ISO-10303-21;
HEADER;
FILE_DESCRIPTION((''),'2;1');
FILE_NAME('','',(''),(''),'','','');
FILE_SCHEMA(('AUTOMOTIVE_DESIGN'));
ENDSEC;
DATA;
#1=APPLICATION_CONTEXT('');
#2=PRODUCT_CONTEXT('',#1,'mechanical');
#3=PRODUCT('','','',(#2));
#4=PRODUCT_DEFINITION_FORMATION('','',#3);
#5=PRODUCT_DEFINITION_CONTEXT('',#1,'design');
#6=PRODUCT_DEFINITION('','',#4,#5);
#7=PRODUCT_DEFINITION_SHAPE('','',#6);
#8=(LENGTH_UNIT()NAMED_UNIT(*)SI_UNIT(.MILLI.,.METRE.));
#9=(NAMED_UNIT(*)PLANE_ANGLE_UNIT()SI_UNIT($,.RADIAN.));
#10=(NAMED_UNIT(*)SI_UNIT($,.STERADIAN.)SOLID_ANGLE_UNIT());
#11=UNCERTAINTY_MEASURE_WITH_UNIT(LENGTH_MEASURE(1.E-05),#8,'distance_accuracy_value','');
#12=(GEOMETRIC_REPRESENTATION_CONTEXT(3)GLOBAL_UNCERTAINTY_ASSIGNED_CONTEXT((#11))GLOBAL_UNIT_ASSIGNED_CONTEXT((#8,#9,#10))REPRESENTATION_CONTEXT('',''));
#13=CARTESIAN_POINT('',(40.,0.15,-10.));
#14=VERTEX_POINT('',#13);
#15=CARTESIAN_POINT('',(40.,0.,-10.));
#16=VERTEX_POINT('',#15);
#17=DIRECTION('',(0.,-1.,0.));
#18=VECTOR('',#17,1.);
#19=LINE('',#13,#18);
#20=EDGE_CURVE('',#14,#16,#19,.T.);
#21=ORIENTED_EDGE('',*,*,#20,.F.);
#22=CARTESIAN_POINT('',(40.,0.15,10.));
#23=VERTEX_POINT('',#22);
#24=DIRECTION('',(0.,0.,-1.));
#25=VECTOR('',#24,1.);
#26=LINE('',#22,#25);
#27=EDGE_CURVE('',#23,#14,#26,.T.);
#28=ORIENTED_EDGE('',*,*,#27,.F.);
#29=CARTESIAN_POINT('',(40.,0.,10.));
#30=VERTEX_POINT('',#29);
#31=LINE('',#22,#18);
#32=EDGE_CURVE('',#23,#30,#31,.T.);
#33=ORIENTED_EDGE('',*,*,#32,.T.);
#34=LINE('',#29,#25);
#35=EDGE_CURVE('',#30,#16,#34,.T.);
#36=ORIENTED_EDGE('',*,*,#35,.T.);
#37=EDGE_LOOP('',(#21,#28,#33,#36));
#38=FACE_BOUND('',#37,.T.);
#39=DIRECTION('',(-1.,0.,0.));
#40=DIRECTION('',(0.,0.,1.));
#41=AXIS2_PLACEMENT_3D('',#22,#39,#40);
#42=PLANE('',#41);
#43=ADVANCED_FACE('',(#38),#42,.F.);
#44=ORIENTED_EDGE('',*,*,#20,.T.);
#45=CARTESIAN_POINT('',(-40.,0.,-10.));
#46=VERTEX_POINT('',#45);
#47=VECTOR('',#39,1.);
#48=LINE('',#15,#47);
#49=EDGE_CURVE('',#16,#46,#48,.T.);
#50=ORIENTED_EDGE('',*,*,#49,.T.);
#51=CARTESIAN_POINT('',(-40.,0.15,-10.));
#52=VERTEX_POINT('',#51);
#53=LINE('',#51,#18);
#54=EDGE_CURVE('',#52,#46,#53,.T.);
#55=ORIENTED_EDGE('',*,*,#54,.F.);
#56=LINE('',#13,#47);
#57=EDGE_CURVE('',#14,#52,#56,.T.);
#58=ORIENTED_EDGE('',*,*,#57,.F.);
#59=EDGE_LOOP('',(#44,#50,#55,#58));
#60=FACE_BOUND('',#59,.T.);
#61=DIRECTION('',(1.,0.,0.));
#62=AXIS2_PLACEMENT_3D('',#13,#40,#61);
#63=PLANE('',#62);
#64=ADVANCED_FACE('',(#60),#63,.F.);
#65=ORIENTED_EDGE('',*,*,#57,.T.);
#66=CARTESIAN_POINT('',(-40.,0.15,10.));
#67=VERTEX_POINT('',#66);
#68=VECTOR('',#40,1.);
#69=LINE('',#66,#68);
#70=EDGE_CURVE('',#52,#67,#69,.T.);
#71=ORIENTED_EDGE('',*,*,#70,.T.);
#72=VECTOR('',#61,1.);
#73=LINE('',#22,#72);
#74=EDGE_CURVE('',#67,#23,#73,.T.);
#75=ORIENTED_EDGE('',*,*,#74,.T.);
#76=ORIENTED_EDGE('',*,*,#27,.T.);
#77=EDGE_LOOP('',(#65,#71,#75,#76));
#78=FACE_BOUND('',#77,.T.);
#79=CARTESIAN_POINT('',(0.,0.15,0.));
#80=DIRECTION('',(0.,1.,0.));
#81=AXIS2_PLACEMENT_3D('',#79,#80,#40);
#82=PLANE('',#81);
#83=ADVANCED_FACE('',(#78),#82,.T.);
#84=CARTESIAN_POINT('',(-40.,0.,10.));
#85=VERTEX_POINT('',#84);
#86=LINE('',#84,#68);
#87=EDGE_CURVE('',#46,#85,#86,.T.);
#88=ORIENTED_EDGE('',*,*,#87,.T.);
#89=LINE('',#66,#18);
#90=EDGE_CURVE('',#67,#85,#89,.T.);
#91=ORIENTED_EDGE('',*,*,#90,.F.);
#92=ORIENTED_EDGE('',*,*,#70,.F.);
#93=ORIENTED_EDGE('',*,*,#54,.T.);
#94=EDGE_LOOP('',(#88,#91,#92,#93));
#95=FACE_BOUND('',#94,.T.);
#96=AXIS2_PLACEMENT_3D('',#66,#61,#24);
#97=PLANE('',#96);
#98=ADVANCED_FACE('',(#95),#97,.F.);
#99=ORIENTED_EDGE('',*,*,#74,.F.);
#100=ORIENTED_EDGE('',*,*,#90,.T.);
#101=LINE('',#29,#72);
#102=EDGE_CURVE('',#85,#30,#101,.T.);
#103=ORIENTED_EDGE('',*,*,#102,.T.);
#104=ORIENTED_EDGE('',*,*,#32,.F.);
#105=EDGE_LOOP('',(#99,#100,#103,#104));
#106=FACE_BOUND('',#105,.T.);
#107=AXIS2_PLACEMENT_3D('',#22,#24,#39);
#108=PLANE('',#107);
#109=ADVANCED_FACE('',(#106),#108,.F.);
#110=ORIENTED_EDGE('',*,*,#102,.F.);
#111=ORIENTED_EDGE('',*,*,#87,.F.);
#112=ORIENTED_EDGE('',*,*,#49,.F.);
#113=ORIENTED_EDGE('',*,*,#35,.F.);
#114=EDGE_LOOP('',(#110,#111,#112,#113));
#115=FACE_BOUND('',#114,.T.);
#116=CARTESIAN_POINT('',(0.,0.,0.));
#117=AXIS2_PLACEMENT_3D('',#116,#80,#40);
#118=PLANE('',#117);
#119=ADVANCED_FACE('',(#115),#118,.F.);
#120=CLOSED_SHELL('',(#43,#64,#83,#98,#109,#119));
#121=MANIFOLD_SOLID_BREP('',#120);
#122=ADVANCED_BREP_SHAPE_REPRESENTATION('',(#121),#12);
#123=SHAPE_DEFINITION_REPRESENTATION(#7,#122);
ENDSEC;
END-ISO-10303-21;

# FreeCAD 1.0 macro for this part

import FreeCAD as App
import Part
import Sketcher

V = App.Vector

doc = App.newDocument("Part")
body = doc.addObject("PartDesign::Body", "Body")

# Sketch on XZ plane
sketch1 = body.newObject("Sketcher::SketchObject", "Sketch")
sketch1.AttachmentSupport = (doc.getObject("XZ_Plane"), [""])
sketch1.MapMode = "FlatFace"
sketch1.addGeometry([
    Part.LineSegment(V(-40, -10, 0), V(-40, 10, 0)),
    Part.LineSegment(V(-40, 10, 0), V(40, 10, 0)),
    Part.LineSegment(V(40, 10, 0), V(40, -10, 0)),
    Part.LineSegment(V(40, -10, 0), V(-40, -10, 0)),
], False)
sketch1.addConstraint([
    Sketcher.Constraint("Coincident", 0, 2, 1, 1),
    Sketcher.Constraint("Coincident", 1, 2, 2, 1),
    Sketcher.Constraint("Coincident", 2, 2, 3, 1),
    Sketcher.Constraint("Coincident", 3, 2, 0, 1),
    Sketcher.Constraint("Vertical", 0),
    Sketcher.Constraint("Horizontal", 1),
    Sketcher.Constraint("Vertical", 2),
    Sketcher.Constraint("Horizontal", 3),
    Sketcher.Constraint("Symmetric", 0, 2, 2, 2, -1, 1),
    Sketcher.Constraint("DistanceX", 1, 1, 1, 2, 80.0),
    Sketcher.Constraint("DistanceY", 0, 1, 0, 2, 20.0),
])
pad1 = body.newObject("PartDesign::Pad", "Pad")
pad1.Profile = sketch1
pad1.Length = 0.15
pad1.Reversed = True

doc.recompute()
